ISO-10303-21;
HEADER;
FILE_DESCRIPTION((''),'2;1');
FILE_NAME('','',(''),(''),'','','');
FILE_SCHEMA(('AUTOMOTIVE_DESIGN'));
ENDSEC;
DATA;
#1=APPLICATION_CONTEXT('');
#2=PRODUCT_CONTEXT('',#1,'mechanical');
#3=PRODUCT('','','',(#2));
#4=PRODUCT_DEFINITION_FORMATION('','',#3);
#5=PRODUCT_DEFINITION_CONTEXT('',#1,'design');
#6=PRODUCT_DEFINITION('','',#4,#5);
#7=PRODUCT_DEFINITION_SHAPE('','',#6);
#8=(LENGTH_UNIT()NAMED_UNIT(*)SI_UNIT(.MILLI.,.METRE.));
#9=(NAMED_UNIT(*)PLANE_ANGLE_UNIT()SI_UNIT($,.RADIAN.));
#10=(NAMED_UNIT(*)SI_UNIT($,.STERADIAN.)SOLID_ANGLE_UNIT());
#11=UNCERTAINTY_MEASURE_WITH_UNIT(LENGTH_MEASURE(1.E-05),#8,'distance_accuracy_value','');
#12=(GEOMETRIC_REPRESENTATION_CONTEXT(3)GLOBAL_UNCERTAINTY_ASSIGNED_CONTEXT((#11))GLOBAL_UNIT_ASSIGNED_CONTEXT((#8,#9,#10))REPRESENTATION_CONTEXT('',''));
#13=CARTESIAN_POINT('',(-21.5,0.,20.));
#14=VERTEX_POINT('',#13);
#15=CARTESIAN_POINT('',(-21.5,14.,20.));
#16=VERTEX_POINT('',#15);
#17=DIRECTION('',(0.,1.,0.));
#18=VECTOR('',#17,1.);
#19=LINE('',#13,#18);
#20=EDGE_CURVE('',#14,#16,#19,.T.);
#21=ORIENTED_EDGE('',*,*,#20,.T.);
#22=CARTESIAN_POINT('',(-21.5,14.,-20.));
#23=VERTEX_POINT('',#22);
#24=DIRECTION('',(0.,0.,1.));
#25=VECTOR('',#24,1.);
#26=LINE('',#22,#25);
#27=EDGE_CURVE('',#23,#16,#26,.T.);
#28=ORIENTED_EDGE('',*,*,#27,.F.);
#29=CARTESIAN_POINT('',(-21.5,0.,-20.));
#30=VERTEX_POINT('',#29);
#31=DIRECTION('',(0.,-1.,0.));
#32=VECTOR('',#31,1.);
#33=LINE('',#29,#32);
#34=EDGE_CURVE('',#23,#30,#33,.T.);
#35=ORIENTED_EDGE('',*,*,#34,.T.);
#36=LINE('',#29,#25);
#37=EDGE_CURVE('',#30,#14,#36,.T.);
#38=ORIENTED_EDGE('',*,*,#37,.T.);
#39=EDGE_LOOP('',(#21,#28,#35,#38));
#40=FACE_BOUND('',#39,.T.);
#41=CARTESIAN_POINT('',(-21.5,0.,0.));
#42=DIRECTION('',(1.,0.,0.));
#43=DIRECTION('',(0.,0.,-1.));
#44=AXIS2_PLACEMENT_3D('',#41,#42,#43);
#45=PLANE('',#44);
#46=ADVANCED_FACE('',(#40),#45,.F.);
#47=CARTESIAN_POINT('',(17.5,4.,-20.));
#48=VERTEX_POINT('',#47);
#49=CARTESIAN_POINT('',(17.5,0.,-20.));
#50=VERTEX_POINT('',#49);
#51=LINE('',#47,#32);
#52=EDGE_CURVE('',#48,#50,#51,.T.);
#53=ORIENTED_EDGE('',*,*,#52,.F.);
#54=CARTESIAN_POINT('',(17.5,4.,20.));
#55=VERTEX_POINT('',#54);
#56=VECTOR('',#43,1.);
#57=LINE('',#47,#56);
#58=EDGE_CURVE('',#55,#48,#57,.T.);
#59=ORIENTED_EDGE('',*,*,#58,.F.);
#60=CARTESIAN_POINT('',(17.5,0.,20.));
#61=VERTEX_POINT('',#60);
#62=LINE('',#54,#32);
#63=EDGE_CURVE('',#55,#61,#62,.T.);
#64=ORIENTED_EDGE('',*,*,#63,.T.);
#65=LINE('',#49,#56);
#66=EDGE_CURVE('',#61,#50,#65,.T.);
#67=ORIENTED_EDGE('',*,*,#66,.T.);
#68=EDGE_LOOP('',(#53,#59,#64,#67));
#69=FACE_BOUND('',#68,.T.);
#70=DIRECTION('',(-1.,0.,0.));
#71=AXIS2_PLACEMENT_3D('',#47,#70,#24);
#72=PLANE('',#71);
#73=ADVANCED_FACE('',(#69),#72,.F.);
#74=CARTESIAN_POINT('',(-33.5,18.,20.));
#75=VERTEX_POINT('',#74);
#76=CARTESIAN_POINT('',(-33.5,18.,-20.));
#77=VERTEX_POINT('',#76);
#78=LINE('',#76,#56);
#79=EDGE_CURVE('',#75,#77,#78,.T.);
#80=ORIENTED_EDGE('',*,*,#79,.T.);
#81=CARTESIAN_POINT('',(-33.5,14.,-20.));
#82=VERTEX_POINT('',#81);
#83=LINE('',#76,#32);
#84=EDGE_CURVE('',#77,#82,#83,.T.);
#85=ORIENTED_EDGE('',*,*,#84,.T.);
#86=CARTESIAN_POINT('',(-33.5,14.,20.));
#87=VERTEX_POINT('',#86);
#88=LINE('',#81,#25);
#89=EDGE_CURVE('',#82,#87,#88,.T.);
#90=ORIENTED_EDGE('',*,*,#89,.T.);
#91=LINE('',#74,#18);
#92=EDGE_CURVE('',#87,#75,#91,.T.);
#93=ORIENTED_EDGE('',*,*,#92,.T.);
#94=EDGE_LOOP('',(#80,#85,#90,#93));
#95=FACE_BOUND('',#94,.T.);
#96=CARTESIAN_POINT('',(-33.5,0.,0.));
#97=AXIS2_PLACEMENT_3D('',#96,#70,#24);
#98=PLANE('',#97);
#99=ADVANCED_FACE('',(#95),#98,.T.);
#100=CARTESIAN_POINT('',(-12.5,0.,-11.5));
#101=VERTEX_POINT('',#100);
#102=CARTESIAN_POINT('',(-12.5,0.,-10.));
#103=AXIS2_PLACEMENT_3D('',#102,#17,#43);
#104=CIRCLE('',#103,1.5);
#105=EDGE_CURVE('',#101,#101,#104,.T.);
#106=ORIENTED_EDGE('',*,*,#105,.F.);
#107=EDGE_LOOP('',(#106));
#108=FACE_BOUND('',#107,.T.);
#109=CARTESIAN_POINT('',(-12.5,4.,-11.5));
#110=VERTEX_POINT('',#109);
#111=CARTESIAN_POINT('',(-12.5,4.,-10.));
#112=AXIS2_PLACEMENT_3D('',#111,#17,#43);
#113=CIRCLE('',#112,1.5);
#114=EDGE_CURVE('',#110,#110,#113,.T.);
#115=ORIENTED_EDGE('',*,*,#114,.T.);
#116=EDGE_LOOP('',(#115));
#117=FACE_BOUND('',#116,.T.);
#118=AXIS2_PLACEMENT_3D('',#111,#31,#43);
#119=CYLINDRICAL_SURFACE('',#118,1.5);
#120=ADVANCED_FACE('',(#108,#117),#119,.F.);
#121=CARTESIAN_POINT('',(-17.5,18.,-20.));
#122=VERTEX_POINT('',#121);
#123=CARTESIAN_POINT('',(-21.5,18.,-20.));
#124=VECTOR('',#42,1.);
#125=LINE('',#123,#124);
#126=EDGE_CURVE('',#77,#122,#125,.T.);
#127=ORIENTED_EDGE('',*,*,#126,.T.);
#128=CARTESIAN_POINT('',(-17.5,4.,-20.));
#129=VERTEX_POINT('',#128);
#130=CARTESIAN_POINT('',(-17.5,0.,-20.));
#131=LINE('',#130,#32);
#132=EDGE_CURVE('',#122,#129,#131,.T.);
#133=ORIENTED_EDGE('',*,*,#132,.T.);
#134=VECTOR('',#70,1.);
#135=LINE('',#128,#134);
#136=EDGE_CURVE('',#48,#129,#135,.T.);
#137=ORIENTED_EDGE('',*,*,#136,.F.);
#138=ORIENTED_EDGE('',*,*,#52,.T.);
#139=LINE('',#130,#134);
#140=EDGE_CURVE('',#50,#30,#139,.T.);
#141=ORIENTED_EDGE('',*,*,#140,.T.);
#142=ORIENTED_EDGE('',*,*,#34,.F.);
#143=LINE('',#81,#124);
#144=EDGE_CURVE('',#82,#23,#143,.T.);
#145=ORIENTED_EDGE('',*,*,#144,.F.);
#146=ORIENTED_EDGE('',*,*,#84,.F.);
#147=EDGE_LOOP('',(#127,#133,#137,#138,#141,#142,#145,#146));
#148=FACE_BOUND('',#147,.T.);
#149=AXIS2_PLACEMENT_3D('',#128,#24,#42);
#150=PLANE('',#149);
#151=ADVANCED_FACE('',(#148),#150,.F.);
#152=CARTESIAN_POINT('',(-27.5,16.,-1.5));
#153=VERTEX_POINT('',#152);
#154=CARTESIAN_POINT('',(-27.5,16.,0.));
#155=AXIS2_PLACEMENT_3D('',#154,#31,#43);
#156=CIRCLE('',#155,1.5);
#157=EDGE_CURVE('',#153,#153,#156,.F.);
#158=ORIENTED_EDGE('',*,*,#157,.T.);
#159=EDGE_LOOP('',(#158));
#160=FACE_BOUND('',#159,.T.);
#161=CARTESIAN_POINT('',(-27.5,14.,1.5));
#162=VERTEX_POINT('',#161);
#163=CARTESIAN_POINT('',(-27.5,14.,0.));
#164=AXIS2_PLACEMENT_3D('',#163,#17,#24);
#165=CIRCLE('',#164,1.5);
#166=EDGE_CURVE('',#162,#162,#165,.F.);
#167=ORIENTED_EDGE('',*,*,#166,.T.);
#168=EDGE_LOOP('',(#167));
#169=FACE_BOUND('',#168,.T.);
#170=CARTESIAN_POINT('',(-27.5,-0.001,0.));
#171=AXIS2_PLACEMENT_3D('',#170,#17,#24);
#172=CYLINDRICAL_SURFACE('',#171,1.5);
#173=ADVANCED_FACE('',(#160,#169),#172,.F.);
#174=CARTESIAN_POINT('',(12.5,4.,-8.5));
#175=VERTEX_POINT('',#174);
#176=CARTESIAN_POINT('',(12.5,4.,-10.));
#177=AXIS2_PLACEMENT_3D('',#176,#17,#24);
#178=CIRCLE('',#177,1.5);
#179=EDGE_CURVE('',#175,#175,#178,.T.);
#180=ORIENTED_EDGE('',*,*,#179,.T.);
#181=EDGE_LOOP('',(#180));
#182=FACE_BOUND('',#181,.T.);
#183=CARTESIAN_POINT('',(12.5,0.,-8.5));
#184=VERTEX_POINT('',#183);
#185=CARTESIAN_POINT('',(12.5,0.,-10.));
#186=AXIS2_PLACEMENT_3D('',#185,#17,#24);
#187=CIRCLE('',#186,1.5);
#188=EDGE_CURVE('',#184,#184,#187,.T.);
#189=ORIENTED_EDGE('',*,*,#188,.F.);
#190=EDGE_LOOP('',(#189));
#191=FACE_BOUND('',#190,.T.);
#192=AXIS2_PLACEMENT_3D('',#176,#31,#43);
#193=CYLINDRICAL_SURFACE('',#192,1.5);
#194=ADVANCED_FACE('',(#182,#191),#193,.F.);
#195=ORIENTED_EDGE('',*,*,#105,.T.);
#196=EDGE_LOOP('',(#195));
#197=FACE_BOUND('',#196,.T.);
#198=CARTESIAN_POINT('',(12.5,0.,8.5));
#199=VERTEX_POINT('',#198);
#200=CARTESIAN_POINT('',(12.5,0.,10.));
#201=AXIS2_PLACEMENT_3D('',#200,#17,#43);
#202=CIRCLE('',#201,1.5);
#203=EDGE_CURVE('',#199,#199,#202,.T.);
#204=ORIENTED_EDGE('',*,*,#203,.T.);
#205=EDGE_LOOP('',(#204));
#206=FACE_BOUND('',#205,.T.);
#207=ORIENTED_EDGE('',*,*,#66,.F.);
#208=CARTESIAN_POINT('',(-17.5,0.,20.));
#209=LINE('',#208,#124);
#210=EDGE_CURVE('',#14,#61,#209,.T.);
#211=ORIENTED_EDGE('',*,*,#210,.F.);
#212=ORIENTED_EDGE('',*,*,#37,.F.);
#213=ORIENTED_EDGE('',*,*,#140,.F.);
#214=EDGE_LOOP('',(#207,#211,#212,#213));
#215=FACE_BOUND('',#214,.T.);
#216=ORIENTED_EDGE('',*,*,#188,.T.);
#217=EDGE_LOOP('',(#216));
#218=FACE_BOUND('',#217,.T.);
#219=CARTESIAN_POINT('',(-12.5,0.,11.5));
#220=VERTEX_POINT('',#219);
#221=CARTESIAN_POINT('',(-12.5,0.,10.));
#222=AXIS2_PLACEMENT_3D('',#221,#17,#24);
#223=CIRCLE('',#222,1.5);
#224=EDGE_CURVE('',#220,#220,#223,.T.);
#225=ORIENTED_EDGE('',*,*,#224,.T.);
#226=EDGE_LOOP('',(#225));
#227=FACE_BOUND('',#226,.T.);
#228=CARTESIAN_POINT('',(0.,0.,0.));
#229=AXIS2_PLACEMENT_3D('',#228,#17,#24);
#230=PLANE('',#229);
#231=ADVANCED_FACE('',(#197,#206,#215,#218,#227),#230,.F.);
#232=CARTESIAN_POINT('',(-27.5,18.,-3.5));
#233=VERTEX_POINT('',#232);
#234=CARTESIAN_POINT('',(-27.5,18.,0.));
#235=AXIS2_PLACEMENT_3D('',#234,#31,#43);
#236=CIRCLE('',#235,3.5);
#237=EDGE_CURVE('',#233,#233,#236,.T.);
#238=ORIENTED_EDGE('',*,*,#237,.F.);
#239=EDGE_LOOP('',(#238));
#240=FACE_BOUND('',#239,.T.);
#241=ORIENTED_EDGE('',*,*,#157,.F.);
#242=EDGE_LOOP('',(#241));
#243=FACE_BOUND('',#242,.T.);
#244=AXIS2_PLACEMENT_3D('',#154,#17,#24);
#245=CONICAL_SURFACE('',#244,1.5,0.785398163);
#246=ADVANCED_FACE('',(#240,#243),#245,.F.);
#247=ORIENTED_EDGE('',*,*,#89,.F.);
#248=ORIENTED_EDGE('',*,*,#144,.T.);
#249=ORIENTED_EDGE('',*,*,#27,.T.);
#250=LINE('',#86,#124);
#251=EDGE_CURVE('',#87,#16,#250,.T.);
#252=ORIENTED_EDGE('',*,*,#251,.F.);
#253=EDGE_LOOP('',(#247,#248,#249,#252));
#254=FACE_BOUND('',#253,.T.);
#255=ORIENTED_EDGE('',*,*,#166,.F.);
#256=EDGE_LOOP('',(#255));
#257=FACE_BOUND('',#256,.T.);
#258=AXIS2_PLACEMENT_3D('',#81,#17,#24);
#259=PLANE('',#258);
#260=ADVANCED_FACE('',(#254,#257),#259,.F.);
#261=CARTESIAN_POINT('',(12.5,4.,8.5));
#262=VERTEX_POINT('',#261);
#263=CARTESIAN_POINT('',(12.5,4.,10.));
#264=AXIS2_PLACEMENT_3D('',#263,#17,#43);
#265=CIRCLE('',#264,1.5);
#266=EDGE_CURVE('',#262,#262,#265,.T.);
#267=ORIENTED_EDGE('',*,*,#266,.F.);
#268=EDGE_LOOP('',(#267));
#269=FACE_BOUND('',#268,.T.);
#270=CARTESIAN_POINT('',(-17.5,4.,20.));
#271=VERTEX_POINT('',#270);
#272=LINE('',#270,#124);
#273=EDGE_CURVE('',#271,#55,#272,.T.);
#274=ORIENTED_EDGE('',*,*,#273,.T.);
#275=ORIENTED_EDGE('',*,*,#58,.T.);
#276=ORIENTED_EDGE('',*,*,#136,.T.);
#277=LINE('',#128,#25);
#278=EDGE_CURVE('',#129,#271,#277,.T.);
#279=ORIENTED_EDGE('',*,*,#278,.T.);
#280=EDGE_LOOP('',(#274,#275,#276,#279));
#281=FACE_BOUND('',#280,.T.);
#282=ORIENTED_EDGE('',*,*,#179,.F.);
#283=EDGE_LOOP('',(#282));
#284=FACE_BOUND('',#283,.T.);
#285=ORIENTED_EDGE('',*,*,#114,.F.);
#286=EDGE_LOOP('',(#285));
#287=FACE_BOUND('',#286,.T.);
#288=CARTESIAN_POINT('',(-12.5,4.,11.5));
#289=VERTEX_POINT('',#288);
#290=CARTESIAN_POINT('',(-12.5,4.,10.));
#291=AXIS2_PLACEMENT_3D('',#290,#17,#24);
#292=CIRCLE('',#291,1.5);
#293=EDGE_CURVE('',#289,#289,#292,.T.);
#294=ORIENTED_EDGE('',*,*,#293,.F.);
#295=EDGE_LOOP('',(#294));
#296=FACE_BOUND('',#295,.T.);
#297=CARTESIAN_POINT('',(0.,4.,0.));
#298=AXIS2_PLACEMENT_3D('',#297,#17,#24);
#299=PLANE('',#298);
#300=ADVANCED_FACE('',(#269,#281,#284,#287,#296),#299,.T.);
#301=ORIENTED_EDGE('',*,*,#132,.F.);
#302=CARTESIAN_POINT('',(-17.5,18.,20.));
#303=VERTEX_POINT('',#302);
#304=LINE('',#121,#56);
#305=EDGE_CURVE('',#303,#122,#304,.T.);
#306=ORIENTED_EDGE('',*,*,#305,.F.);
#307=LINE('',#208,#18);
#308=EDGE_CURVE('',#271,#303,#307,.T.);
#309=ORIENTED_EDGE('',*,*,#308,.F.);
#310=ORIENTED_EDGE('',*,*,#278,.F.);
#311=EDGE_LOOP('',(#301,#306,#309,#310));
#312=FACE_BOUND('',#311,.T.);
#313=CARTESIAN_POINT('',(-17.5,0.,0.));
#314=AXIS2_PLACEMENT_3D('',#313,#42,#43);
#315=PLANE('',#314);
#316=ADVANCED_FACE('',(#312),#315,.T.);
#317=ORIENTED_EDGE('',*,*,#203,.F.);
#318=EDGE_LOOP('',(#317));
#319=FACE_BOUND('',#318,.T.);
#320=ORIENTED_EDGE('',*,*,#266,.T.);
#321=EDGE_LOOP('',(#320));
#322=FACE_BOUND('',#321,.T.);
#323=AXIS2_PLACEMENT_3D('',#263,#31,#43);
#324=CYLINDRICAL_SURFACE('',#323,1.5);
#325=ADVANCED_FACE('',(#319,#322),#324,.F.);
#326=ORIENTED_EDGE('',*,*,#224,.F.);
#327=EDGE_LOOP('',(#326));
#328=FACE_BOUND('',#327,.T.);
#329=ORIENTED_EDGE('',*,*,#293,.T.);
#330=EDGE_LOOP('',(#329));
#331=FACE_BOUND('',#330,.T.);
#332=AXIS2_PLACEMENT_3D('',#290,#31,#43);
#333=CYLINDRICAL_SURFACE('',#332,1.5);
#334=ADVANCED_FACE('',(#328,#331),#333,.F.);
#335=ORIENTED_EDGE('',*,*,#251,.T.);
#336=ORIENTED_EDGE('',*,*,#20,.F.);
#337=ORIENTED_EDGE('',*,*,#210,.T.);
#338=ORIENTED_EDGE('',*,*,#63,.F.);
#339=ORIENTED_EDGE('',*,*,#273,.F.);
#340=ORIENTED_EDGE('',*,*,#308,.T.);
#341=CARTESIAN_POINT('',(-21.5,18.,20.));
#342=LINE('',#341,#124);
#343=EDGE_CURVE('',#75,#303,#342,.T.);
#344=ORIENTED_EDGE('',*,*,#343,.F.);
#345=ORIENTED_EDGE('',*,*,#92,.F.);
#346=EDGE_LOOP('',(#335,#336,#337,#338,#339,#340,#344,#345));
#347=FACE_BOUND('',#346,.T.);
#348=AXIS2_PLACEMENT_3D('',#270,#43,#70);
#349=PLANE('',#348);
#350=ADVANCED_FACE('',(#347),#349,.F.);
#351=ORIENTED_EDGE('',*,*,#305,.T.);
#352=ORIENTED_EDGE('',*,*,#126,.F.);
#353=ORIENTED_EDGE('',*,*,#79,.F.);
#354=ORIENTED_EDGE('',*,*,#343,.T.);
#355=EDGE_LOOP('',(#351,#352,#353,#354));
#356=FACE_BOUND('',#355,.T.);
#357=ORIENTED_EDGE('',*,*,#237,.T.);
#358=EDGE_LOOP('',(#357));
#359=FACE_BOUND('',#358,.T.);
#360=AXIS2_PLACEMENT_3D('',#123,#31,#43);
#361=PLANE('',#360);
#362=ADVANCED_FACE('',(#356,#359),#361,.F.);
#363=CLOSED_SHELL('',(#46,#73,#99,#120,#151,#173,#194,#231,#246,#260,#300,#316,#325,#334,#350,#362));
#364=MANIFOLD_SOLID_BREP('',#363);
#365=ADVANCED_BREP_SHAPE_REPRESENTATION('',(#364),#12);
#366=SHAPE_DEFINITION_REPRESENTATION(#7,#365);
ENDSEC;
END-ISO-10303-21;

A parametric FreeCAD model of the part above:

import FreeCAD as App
import Part
import Sketcher

V = App.Vector
Q = App.Units.Quantity


def edges_at(feature, points):
    """Names of the edges that pass closest to the given points."""
    edges = feature.Shape.Edges
    near = lambda p: min(range(len(edges)), key=lambda i: edges[i].distToShape(Part.Vertex(*p))[0])
    return sorted({f"Edge{near(p) + 1}" for p in points})

doc = App.newDocument("Part")
body = doc.addObject("PartDesign::Body", "Body")

# Sketch on XZ plane
sketch1 = body.newObject("Sketcher::SketchObject", "Sketch")
sketch1.AttachmentSupport = (doc.getObject("XZ_Plane"), [""])
sketch1.MapMode = "FlatFace"
sketch1.addGeometry([
    Part.LineSegment(V(-17.5, -20, 0), V(-17.5, 20, 0)),  # 0
    Part.LineSegment(V(-17.5, 20, 0), V(17.5, 20, 0)),  # 1
    Part.LineSegment(V(17.5, 20, 0), V(17.5, -20, 0)),  # 2
    Part.LineSegment(V(17.5, -20, 0), V(-17.5, -20, 0)),  # 3
    Part.Circle(V(-12.5, 10, 0), V(0, 0, 1), 1.5),  # 4
    Part.Circle(V(12.5, 10, 0), V(0, 0, 1), 1.5),  # 5
    Part.Circle(V(-12.5, -10, 0), V(0, 0, 1), 1.5),  # 6
    Part.Circle(V(12.5, -10, 0), V(0, 0, 1), 1.5),  # 7
], False)
sketch1.addConstraint([
    Sketcher.Constraint("Coincident", 0, 2, 1, 1),
    Sketcher.Constraint("Coincident", 1, 2, 2, 1),
    Sketcher.Constraint("Coincident", 2, 2, 3, 1),
    Sketcher.Constraint("Coincident", 3, 2, 0, 1),
    Sketcher.Constraint("Vertical", 0),
    Sketcher.Constraint("Horizontal", 1),
    Sketcher.Constraint("Vertical", 2),
    Sketcher.Constraint("Horizontal", 3),
    Sketcher.Constraint("Equal", 4, 5),
    Sketcher.Constraint("Equal", 5, 6),
    Sketcher.Constraint("Equal", 6, 7),
    Sketcher.Constraint("Symmetric", 5, 3, 6, 3, -1, 1),
    Sketcher.Constraint("Symmetric", 4, 3, 7, 3, -1, 1),
    Sketcher.Constraint("Symmetric", 0, 2, 2, 2, -1, 1),
    Sketcher.Constraint("Symmetric", 4, 3, 5, 3, -2),
    Sketcher.Constraint("Diameter", 4, Q("3 mm")),
    Sketcher.Constraint("DistanceX", 1, 1, 1, 2, Q("35 mm")),
    Sketcher.Constraint("DistanceY", 0, 1, 0, 2, Q("40 mm")),
    Sketcher.Constraint("DistanceY", -1, 1, 4, 3, Q("10 mm")),
    Sketcher.Constraint("DistanceX", 4, 3, 5, 3, Q("25 mm")),
])
pad1 = body.newObject("PartDesign::Pad", "Pad")
pad1.Profile = sketch1
pad1.Length = 4
pad1.Reversed = True

# Sketch on YZ plane
sketch2 = body.newObject("Sketcher::SketchObject", "Sketch001")
sketch2.AttachmentSupport = (doc.getObject("YZ_Plane"), [""])
sketch2.MapMode = "FlatFace"
sketch2.AttachmentOffset = App.Placement(V(0, 0, -17.5), App.Rotation())
sketch2.addGeometry([
    Part.LineSegment(V(18, -20, 0), V(0, -20, 0)),
    Part.LineSegment(V(0, -20, 0), V(0, 20, 0)),
    Part.LineSegment(V(0, 20, 0), V(18, 20, 0)),
    Part.LineSegment(V(18, 20, 0), V(18, -20, 0)),
], False)
sketch2.addConstraint([
    Sketcher.Constraint("Coincident", 0, 2, 1, 1),
    Sketcher.Constraint("Coincident", 1, 2, 2, 1),
    Sketcher.Constraint("Coincident", 2, 2, 3, 1),
    Sketcher.Constraint("Coincident", 3, 2, 0, 1),
    Sketcher.Constraint("Horizontal", 0),
    Sketcher.Constraint("Vertical", 1),
    Sketcher.Constraint("Horizontal", 2),
    Sketcher.Constraint("Vertical", 3),
    Sketcher.Constraint("Symmetric", 0, 2, 1, 2, -1, 1),
    Sketcher.Constraint("DistanceX", 0, 2, 0, 1, Q("18 mm")),
    Sketcher.Constraint("DistanceY", 1, 1, 1, 2, Q("40 mm")),
])
pad2 = body.newObject("PartDesign::Pad", "Pad001")
pad2.Profile = sketch2
pad2.Length = 4
pad2.Reversed = True

# Sketch on YZ plane
sketch3 = body.newObject("Sketcher::SketchObject", "Sketch002")
sketch3.AttachmentSupport = (doc.getObject("YZ_Plane"), [""])
sketch3.MapMode = "FlatFace"
sketch3.AttachmentOffset = App.Placement(V(0, 0, -21.5), App.Rotation())
sketch3.addGeometry([
    Part.LineSegment(V(18, -20, 0), V(14, -20, 0)),
    Part.LineSegment(V(14, -20, 0), V(14, 20, 0)),
    Part.LineSegment(V(14, 20, 0), V(18, 20, 0)),
    Part.LineSegment(V(18, 20, 0), V(18, -20, 0)),
], False)
sketch3.addConstraint([
    Sketcher.Constraint("Coincident", 0, 2, 1, 1),
    Sketcher.Constraint("Coincident", 1, 2, 2, 1),
    Sketcher.Constraint("Coincident", 2, 2, 3, 1),
    Sketcher.Constraint("Coincident", 3, 2, 0, 1),
    Sketcher.Constraint("Horizontal", 0),
    Sketcher.Constraint("Vertical", 1),
    Sketcher.Constraint("Horizontal", 2),
    Sketcher.Constraint("Vertical", 3),
    Sketcher.Constraint("DistanceX", 0, 2, 0, 1, Q("4 mm")),
    Sketcher.Constraint("DistanceY", 1, 1, 1, 2, Q("40 mm")),
    Sketcher.Constraint("DistanceX", -1, 1, 0, 2, Q("14 mm")),
    Sketcher.Constraint("DistanceY", 0, 2, -1, 1, Q("20 mm")),
])
pad3 = body.newObject("PartDesign::Pad", "Pad002")
pad3.Profile = sketch3
pad3.Length = 12
pad3.Reversed = True

# Sketch on XZ plane
sketch4 = body.newObject("Sketcher::SketchObject", "Sketch003")
sketch4.AttachmentSupport = (doc.getObject("XZ_Plane"), [""])
sketch4.MapMode = "FlatFace"
sketch4.AttachmentOffset = App.Placement(V(0, 0, -18), App.Rotation())
sketch4.addGeometry(Part.Circle(V(-27.5, 0, 0), V(0, 0, 1), 1.5), False)
sketch4.addConstraint([
    Sketcher.Constraint("PointOnObject", 0, 3, -1),
    Sketcher.Constraint("Diameter", 0, Q("3 mm")),
    Sketcher.Constraint("DistanceX", 0, 3, -1, 1, Q("27.5 mm")),
])
pocket1 = body.newObject("PartDesign::Pocket", "Pocket")
pocket1.Profile = sketch4
pocket1.Type = "UpToFirst"
pocket1.Reversed = True
doc.recompute()

chamfer = body.newObject("PartDesign::Chamfer", "Chamfer")
chamfer.Base = (pocket1, edges_at(pocket1, [(-27.5, 18, -1.5)]))
chamfer.Size = 2

doc.recompute()
